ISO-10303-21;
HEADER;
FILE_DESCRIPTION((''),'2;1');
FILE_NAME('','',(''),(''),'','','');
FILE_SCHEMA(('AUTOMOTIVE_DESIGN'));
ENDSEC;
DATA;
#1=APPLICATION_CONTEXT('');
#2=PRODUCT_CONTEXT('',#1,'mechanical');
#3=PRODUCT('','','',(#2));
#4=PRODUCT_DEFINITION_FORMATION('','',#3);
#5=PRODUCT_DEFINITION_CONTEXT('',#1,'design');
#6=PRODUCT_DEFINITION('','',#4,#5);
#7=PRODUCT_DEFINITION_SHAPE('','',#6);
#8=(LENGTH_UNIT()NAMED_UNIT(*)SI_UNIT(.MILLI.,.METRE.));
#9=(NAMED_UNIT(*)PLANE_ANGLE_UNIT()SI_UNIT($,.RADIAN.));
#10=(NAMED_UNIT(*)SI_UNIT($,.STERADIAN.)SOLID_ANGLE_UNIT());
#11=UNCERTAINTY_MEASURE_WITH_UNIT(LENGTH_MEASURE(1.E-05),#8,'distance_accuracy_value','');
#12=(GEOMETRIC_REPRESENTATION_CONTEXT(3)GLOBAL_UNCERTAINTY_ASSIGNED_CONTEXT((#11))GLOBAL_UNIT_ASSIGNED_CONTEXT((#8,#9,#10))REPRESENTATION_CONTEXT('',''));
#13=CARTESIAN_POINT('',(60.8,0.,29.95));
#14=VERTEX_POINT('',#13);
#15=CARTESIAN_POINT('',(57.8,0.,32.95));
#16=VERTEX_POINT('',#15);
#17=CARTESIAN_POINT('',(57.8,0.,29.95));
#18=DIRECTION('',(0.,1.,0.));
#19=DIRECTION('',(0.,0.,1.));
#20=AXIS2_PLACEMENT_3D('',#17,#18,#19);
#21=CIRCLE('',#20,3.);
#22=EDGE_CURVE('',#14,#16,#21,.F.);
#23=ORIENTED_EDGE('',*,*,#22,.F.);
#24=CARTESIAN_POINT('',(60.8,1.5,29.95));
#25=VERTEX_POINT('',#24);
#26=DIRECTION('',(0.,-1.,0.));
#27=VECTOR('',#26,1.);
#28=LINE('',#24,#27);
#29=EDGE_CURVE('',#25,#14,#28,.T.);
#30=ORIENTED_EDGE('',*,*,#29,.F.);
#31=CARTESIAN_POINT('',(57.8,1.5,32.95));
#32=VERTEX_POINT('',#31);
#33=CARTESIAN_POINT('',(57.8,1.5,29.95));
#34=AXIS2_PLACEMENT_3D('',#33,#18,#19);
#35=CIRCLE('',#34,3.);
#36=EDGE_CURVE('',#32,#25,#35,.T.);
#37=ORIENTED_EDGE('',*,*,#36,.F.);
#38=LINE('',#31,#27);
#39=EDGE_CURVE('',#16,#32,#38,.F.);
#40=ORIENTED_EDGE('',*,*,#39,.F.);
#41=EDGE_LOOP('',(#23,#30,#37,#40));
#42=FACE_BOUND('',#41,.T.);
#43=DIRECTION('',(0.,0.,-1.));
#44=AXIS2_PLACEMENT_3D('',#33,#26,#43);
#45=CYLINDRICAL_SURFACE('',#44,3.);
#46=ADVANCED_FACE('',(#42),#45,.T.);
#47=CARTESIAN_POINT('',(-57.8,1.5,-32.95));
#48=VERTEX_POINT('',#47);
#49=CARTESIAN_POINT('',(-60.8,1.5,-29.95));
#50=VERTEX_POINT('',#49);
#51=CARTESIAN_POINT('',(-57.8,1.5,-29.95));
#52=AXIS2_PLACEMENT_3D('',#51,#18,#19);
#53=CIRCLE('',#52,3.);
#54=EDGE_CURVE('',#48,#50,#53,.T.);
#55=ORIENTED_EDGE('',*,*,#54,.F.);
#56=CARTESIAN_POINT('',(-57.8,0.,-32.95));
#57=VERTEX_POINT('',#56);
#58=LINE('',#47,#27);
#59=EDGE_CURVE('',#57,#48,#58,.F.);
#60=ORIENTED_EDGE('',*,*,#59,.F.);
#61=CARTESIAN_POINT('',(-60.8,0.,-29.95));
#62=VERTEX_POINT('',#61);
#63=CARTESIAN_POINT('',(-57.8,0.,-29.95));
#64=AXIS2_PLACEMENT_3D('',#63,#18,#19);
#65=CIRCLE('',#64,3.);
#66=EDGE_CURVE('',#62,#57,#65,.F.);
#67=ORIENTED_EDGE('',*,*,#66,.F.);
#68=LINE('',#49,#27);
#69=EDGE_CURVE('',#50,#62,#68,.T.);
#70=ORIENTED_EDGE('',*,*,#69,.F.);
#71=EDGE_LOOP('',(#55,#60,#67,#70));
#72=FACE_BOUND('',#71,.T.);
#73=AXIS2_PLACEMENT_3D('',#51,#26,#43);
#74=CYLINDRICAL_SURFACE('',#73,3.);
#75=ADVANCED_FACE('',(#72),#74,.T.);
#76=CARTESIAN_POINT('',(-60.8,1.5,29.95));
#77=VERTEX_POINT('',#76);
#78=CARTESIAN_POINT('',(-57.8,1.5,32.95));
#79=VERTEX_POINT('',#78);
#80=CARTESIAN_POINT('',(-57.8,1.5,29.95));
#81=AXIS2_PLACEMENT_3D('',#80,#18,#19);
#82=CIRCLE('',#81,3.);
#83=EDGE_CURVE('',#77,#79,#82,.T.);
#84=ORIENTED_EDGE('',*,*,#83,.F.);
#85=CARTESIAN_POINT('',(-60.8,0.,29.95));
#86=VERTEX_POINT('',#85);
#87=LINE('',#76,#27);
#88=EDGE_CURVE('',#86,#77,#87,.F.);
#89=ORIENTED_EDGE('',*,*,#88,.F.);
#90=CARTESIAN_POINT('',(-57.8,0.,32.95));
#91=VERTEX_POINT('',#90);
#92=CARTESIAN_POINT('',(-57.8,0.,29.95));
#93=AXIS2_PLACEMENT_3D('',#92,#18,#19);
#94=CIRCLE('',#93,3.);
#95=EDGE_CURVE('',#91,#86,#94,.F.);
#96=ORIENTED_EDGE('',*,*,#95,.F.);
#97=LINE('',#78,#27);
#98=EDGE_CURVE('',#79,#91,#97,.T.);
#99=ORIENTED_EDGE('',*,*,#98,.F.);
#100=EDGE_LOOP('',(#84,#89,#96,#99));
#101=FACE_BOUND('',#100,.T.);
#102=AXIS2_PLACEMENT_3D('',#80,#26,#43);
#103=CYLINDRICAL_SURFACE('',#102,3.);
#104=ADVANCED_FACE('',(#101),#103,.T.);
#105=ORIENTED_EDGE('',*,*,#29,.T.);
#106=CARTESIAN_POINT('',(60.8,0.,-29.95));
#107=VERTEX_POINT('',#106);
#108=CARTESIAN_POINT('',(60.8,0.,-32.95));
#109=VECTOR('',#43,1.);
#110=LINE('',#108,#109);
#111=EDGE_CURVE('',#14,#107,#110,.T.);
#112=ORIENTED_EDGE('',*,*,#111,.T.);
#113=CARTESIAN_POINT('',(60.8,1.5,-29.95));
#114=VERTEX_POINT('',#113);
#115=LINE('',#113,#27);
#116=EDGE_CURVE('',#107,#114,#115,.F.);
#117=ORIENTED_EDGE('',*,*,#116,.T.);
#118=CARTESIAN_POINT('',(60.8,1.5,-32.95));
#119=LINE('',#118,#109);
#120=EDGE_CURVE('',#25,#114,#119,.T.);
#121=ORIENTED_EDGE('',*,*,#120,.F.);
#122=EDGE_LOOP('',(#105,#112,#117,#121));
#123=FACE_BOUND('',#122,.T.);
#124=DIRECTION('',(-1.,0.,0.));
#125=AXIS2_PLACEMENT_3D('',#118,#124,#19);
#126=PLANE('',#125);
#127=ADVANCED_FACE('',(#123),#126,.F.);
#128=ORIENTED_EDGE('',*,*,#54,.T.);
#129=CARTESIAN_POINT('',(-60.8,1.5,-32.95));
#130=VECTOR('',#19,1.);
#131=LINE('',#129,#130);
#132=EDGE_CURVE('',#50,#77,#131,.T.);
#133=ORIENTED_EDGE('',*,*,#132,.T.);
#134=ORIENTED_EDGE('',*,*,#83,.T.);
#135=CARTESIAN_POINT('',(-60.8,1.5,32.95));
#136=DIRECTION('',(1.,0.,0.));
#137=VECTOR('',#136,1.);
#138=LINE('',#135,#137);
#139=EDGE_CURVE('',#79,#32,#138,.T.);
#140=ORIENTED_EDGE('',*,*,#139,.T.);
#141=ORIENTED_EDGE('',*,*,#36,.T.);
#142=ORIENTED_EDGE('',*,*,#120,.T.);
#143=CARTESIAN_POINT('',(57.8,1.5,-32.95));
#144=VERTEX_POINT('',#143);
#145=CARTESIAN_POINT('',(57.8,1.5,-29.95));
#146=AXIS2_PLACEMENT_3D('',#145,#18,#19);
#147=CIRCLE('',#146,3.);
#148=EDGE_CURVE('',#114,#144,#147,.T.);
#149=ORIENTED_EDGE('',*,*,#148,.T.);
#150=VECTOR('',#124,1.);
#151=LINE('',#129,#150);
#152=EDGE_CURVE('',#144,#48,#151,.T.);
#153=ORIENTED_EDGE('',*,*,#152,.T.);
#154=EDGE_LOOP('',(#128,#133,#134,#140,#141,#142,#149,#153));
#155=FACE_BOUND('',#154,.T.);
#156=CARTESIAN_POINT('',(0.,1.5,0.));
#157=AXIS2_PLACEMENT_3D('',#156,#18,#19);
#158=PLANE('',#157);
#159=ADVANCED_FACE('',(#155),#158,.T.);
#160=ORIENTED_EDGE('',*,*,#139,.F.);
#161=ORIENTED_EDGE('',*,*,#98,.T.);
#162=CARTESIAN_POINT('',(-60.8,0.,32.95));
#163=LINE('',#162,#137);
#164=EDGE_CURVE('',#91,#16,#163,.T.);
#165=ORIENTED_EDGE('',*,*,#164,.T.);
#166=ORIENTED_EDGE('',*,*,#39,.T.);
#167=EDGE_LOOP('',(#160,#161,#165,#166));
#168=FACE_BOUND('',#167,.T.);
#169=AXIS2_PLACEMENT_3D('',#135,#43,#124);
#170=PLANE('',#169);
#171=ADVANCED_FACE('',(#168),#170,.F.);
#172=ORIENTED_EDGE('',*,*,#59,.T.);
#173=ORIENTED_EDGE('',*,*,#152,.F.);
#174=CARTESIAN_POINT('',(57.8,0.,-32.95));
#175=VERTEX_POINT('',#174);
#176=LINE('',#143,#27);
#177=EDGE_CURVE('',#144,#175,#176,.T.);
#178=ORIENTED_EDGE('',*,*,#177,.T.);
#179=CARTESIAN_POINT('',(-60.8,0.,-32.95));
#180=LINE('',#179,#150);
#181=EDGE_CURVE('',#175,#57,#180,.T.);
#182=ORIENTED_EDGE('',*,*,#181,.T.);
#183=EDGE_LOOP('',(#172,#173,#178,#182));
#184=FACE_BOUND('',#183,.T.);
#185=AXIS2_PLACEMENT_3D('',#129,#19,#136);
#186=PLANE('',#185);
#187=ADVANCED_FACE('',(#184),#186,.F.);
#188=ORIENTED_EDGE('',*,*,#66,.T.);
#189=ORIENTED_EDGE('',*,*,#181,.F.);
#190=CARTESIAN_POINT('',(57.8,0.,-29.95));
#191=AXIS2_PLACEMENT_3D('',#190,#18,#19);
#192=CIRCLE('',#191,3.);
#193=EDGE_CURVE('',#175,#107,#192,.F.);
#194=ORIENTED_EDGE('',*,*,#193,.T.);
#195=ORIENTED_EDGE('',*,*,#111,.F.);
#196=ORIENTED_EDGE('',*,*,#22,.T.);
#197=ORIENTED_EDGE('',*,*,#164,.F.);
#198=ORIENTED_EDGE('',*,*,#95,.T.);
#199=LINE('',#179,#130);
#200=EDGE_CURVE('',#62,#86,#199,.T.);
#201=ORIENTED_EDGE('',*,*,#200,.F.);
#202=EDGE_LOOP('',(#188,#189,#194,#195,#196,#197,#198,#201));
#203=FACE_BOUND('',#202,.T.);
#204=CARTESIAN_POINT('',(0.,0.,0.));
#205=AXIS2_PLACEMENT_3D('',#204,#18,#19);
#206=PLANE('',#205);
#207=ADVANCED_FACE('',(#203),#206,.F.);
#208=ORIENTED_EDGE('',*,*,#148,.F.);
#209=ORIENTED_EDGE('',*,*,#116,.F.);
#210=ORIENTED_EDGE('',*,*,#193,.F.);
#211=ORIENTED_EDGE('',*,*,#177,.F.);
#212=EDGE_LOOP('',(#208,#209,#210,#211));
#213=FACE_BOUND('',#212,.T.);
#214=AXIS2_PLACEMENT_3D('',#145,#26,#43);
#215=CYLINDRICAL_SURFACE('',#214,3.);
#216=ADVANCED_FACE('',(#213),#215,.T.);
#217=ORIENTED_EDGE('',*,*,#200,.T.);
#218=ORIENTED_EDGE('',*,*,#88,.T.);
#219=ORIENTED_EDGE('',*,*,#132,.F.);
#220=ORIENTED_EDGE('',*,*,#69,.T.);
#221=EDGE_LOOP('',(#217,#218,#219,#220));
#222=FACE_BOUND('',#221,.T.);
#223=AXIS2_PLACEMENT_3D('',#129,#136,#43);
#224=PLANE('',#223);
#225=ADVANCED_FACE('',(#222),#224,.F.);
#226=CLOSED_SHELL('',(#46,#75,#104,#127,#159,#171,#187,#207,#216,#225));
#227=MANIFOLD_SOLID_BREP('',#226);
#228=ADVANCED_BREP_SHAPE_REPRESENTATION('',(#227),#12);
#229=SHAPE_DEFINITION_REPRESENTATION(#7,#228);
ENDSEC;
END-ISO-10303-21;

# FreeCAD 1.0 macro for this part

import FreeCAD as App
import Part
import Sketcher
from FreeCAD import Vector


def edges_at(feature, points):
    """Names of the edges that pass closest to the given points."""
    edges = feature.Shape.Edges
    near = lambda p: min(range(len(edges)), key=lambda i: edges[i].distToShape(Part.Vertex(*p))[0])
    return sorted({f"Edge{near(p) + 1}" for p in points})


def add_polygon(sketch, points):
    """Adds a closed chain of lines whose ends are joined by coincident constraints."""
    first, n = sketch.GeometryCount, len(points)
    for a, b in zip(points, points[1:] + points[:1]):
        sketch.addGeometry(Part.LineSegment(App.Vector(*a, 0), App.Vector(*b, 0)), False)
    for i in range(n):
        sketch.addConstraint(Sketcher.Constraint("Coincident", first + i, 2, first + (i + 1) % n, 1))

doc = App.newDocument("Part")
body = doc.addObject("PartDesign::Body", "Body")

# Sketch on XZ plane
sketch1 = doc.addObject("Sketcher::SketchObject", "Sketch")
body.addObject(sketch1)
sketch1.AttachmentSupport = (doc.XZ_Plane, [""])
sketch1.MapMode = "FlatFace"
add_polygon(sketch1, [(-61, -33), (-61, 33), (61, 33), (61, -33)])  # lines 0-3
sketch1.addConstraint([
    Sketcher.Constraint("Vertical", 0),
    Sketcher.Constraint("Horizontal", 1),
    Sketcher.Constraint("Vertical", 2),
    Sketcher.Constraint("Horizontal", 3),
    Sketcher.Constraint("Symmetric", 0, 2, 2, 2, -1, 1),
    Sketcher.Constraint("DistanceX", 1, 1, 1, 2, 121.6),
    Sketcher.Constraint("DistanceY", 0, 1, 0, 2, 65.9),
])
pad1 = doc.addObject("PartDesign::Pad", "Pad")
body.addObject(pad1)
pad1.Profile = sketch1
pad1.Length = 1.5
pad1.Reversed = True
doc.recompute()

fillet = doc.addObject("PartDesign::Fillet", "Fillet")
body.addObject(fillet)
fillet.Base = (pad1, edges_at(pad1, [
    (60.8, 0.75, 32.95),
    (-60.8, 0.75, 32.95),
    (-60.8, 0.75, -32.95),
    (60.8, 0.75, -32.95),
]))
fillet.Radius = 3

doc.recompute()
